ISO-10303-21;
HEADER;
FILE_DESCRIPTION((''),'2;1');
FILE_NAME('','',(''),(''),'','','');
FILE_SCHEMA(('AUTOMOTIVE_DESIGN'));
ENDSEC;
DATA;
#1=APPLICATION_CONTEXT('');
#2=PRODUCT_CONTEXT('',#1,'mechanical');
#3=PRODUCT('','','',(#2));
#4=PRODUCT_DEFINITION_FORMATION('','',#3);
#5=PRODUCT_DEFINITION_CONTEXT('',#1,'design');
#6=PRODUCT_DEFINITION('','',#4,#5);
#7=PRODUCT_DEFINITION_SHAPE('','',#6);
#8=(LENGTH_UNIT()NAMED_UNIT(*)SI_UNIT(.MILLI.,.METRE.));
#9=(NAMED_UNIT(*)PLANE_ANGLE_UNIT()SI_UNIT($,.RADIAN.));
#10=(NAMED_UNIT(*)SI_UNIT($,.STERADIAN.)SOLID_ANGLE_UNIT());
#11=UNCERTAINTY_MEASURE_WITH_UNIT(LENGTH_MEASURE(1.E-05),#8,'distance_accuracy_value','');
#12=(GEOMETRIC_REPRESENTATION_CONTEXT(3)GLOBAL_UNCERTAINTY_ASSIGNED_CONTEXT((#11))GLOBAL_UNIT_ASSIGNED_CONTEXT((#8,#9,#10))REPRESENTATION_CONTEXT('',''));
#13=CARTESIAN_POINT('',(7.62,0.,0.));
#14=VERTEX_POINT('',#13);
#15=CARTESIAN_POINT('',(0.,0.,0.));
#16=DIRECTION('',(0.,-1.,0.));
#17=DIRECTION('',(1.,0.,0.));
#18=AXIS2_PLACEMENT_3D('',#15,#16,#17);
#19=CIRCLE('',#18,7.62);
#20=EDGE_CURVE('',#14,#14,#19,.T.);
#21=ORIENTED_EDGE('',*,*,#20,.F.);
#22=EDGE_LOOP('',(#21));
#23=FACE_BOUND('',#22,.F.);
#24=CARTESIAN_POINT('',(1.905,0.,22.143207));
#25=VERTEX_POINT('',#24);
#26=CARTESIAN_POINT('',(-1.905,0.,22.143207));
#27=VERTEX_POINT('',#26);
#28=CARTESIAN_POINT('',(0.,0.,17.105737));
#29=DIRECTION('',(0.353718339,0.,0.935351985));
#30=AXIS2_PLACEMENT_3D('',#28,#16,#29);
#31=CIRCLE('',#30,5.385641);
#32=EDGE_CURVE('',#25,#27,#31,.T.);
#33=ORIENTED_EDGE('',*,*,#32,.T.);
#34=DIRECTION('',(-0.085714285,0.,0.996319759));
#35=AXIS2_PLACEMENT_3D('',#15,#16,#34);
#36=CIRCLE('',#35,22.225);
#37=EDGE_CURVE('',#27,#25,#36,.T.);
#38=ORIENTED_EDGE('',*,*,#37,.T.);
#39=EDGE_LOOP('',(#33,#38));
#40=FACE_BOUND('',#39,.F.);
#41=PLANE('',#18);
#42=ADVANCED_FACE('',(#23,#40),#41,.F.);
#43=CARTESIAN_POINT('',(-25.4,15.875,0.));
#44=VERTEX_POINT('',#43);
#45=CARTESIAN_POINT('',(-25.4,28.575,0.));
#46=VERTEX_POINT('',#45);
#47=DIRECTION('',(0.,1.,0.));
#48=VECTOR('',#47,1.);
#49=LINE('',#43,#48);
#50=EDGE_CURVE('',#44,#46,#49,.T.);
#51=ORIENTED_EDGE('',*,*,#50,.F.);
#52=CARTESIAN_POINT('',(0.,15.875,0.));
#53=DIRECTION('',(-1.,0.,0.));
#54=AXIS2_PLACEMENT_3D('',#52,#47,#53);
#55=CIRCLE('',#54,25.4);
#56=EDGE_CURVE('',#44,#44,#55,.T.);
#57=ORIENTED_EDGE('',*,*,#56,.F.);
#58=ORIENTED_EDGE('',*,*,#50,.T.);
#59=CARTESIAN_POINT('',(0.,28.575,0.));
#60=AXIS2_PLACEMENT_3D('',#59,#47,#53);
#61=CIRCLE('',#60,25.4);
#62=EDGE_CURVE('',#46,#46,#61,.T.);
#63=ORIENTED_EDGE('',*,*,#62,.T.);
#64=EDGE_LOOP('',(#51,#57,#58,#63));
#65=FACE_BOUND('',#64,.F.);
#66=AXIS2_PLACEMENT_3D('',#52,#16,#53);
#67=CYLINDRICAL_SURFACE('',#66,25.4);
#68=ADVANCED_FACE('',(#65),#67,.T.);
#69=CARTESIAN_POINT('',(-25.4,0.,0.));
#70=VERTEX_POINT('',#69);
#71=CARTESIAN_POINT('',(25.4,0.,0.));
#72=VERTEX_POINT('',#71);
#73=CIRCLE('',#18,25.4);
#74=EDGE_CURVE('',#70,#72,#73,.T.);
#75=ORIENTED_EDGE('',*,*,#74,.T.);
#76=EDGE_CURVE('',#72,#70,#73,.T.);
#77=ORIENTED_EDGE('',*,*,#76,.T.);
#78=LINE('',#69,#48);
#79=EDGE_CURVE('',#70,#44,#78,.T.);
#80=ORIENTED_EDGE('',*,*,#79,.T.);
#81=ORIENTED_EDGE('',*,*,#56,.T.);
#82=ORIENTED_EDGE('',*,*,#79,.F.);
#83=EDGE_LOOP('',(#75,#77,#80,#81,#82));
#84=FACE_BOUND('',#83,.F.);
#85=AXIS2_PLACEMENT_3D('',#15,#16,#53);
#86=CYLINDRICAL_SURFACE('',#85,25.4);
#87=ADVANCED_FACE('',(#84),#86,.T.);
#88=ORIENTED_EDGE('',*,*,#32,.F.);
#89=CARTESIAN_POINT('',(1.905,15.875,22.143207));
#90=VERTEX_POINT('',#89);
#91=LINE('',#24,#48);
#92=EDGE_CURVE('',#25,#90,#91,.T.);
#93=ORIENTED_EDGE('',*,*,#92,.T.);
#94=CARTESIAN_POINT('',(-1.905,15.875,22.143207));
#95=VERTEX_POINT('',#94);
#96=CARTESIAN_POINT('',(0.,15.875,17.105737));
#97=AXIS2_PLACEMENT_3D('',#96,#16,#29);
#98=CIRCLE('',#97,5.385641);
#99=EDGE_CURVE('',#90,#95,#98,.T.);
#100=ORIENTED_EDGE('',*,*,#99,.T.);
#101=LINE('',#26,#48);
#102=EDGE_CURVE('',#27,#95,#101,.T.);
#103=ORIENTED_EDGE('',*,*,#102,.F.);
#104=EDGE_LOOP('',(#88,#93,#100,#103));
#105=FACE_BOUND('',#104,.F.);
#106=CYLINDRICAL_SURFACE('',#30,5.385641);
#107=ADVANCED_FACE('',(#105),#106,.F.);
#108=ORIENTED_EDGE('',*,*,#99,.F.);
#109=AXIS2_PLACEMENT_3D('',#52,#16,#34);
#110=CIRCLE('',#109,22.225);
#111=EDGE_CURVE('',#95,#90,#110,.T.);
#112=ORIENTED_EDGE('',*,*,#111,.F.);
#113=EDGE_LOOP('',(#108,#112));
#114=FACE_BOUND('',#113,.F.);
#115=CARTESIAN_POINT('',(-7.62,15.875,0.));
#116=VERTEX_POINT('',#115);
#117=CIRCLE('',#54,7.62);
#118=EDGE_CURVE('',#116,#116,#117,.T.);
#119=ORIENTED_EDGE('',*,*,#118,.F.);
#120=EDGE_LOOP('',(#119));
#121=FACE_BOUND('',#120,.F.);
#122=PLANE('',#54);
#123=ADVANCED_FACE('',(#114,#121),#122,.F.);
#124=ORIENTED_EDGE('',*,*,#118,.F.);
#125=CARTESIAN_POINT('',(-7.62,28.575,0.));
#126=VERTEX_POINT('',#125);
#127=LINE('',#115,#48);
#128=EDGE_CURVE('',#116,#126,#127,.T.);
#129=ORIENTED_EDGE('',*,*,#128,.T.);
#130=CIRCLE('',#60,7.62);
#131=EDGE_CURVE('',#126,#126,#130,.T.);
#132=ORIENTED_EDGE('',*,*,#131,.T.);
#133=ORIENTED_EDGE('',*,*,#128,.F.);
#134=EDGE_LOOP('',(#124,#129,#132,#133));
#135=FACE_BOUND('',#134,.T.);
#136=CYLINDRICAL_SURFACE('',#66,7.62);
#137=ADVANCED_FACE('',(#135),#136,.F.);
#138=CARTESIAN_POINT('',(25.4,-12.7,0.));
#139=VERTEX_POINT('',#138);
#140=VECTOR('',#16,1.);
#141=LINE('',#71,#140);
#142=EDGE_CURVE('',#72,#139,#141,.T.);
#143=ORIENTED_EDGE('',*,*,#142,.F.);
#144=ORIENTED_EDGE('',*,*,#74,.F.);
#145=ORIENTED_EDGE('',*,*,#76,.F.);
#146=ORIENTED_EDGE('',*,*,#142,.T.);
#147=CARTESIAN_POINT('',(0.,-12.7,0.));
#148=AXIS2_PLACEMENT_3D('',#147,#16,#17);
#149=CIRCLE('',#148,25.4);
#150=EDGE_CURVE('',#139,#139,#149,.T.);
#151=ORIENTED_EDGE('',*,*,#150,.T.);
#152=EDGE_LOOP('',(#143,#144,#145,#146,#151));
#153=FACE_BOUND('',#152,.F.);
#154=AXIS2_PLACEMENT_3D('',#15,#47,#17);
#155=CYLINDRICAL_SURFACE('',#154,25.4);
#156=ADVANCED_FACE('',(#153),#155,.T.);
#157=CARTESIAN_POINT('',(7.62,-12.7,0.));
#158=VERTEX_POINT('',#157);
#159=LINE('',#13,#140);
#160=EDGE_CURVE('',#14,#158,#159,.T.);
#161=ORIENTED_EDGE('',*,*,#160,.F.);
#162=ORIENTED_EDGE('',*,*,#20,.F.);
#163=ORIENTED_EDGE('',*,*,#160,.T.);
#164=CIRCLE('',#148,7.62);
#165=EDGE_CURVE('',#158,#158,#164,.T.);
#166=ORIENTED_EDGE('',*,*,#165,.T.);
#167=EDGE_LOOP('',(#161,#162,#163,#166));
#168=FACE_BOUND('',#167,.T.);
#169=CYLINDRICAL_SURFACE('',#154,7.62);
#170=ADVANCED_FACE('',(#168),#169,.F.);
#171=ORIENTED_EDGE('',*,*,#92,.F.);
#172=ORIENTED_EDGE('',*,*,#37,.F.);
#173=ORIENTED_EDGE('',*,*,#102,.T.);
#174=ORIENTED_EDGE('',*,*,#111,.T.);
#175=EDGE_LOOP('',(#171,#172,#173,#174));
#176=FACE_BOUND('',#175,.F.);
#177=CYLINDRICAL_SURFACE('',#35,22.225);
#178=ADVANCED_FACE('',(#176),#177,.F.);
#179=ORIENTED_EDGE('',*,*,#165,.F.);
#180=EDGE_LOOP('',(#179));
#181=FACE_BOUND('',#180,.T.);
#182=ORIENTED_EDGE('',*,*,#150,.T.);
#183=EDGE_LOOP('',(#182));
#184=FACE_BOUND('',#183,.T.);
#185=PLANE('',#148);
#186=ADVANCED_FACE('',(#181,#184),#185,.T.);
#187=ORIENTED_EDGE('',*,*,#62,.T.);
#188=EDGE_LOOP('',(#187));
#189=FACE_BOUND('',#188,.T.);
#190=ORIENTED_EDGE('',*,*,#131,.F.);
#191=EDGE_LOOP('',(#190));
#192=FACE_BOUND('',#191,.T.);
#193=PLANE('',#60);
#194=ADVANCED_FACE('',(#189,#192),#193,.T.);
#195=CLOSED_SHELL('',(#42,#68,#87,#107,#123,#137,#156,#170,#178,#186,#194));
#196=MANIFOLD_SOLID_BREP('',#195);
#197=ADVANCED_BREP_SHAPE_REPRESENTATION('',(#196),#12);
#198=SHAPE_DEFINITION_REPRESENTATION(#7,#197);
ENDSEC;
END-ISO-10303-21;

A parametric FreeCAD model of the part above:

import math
import FreeCAD as App
import Part
import Sketcher

V = App.Vector
Q = App.Units.Quantity

doc = App.newDocument("Part")
params = doc.addObject("Spreadsheet::Sheet", "Params")
for row, (alias, value) in enumerate([
    ("sketch1_diameter", "2 in"),
    ("sketch1_diameter2", "0.6 in"),
    ("pad1_length", "0.5 in"),
    ("sketch2_diameter", "2 in"),
    ("sketch2_radius", "0.875 in"),
    ("pad2_length", "0.625 in"),
    ("sketch3_diameter", "2 in"),
    ("sketch3_diameter2", "0.6 in"),
    ("pad3_length", "0.5 in"),
], start=1):
    params.set(f"A{row}", alias)
    params.set(f"B{row}", "=" + value)
    params.setAlias(f"B{row}", alias)

body = doc.addObject("PartDesign::Body", "Body")

# Sketch on XZ plane
sketch1 = body.newObject("Sketcher::SketchObject", "Sketch")
sketch1.AttachmentSupport = (doc.getObject("XZ_Plane"), [""])
sketch1.MapMode = "FlatFace"
sketch1.addGeometry([
    Part.Circle(V(0, 0, 0), V(0, 0, 1), 25.4),
    Part.Circle(V(0, 0, 0), V(0, 0, 1), 7.62),
], False)
sketch1.addConstraint([
    Sketcher.Constraint("Coincident", 0, 3, -1, 1),
    Sketcher.Constraint("Coincident", 1, 3, -1, 1),
    Sketcher.Constraint("Diameter", 0, Q("2 in")),
    Sketcher.Constraint("Diameter", 1, Q("0.6 in")),
])
sketch1.setExpression("Constraints[2]", "Params.sketch1_diameter")
sketch1.setExpression("Constraints[3]", "Params.sketch1_diameter2")
pad1 = body.newObject("PartDesign::Pad", "Pad")
pad1.Profile = sketch1
pad1.setExpression("Length", "Params.pad1_length")

# Sketch on XZ plane
sketch2 = body.newObject("Sketcher::SketchObject", "Sketch001")
sketch2.AttachmentSupport = (doc.getObject("XZ_Plane"), [""])
sketch2.MapMode = "FlatFace"
sketch2.addGeometry([
    Part.Circle(V(0, 0, 0), V(0, 0, 1), 25.4),
    Part.ArcOfCircle(Part.Circle(V(0, 17.105737, 0), V(0, 0, 1), 5.385641), math.radians(69.285085), math.radians(110.714915)),
    Part.ArcOfCircle(Part.Circle(V(0, 0, 0), V(0, 0, 1), 22.225), math.radians(94.9171), math.radians(445.0829)),
], False)
sketch2.addConstraint([
    Sketcher.Constraint("Coincident", 1, 1, 2, 2),
    Sketcher.Constraint("Coincident", 2, 1, 1, 2),
    Sketcher.Constraint("Coincident", 0, 3, -1, 1),
    Sketcher.Constraint("Coincident", 2, 3, -1, 1),
    Sketcher.Constraint("PointOnObject", 1, 3, -2),
    Sketcher.Constraint("Diameter", 0, Q("2 in")),
    Sketcher.Constraint("Radius", 2, Q("0.875 in")),
    Sketcher.Constraint("DistanceX", 2, 1, 1, 1, Q("0.15 in")),
    Sketcher.Constraint("Radius", 1, 5.385641),
])
sketch2.setExpression("Constraints[5]", "Params.sketch2_diameter")
sketch2.setExpression("Constraints[6]", "Params.sketch2_radius")
pad2 = body.newObject("PartDesign::Pad", "Pad001")
pad2.Profile = sketch2
pad2.setExpression("Length", "Params.pad2_length")
pad2.Reversed = True

# Sketch on XZ plane
sketch3 = body.newObject("Sketcher::SketchObject", "Sketch002")
sketch3.AttachmentSupport = (doc.getObject("XZ_Plane"), [""])
sketch3.MapMode = "FlatFace"
sketch3.AttachmentOffset = App.Placement(V(0, 0, -0.625 * 25.4), App.Rotation())
sketch3.addGeometry([
    Part.Circle(V(0, 0, 0), V(0, 0, 1), 25.4),
    Part.Circle(V(0, 0, 0), V(0, 0, 1), 7.62),
], False)
sketch3.addConstraint([
    Sketcher.Constraint("Coincident", 0, 3, -1, 1),
    Sketcher.Constraint("Coincident", 1, 3, -1, 1),
    Sketcher.Constraint("Diameter", 0, Q("2 in")),
    Sketcher.Constraint("Diameter", 1, Q("0.6 in")),
])
sketch3.setExpression("Constraints[2]", "Params.sketch3_diameter")
sketch3.setExpression("Constraints[3]", "Params.sketch3_diameter2")
pad3 = body.newObject("PartDesign::Pad", "Pad002")
pad3.Profile = sketch3
pad3.setExpression("Length", "Params.pad3_length")
pad3.Reversed = True

doc.recompute()
